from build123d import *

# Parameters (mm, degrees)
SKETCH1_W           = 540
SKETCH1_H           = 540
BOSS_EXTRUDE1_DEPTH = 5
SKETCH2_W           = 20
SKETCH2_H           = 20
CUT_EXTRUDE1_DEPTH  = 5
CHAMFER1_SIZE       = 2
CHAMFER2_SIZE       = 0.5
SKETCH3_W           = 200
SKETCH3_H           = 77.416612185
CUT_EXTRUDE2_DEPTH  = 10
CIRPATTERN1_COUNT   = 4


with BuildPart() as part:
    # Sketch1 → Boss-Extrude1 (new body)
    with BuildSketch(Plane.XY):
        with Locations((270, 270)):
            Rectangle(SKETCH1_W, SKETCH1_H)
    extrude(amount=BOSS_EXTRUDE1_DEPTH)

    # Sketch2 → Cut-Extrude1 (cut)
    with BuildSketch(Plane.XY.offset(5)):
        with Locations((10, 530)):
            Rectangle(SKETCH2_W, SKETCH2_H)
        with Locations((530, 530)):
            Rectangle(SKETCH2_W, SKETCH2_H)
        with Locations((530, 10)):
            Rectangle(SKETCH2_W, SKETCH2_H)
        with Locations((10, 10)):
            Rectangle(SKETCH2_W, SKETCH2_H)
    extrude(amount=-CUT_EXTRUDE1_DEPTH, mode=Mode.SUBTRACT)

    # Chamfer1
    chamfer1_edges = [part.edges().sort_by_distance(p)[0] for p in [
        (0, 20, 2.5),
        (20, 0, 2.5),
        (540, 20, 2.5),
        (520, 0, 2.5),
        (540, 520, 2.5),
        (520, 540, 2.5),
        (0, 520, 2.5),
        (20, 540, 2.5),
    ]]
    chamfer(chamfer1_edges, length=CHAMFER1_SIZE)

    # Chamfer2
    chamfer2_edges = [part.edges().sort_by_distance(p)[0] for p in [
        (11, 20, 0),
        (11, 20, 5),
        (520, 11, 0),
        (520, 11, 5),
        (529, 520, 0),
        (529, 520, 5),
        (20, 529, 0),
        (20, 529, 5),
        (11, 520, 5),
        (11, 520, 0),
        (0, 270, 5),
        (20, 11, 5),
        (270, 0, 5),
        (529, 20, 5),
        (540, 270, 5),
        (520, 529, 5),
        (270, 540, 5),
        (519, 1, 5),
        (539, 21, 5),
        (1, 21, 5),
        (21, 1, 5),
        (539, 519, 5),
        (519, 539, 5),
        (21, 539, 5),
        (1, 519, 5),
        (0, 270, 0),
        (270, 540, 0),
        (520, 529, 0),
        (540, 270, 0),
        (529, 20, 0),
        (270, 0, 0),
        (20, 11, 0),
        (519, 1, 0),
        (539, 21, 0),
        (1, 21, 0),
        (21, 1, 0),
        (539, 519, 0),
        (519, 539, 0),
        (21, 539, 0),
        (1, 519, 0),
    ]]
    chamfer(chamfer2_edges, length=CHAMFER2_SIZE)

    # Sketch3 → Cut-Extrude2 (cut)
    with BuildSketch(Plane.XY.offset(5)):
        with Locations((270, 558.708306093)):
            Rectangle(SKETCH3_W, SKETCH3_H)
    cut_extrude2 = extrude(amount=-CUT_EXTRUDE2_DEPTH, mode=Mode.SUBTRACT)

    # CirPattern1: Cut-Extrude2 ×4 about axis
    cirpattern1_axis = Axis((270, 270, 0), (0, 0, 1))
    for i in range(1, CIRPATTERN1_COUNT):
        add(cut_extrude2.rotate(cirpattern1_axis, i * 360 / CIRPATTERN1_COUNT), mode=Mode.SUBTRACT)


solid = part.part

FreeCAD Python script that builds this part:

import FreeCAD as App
import Part
import Sketcher
from FreeCAD import Vector
Q = App.Units.Quantity


def edges_at(feature, points):
    """Names of the edges that pass closest to the given points."""
    edges = feature.Shape.Edges
    near = lambda p: min(range(len(edges)), key=lambda i: edges[i].distToShape(Part.Vertex(*p))[0])
    return sorted({f"Edge{near(p) + 1}" for p in points})

doc = App.newDocument("Part")
body = doc.addObject("PartDesign::Body", "Body")

# Sketch on XY plane
sketch1 = doc.addObject("Sketcher::SketchObject", "Sketch")
body.addObject(sketch1)
sketch1.AttachmentSupport = (doc.XY_Plane, [""])
sketch1.MapMode = "FlatFace"
sketch1.addGeometry([
    Part.LineSegment(Vector(0, 540, 0), Vector(0, 0, 0)),
    Part.LineSegment(Vector(0, 0, 0), Vector(540, 0, 0)),
    Part.LineSegment(Vector(540, 0, 0), Vector(540, 540, 0)),
    Part.LineSegment(Vector(540, 540, 0), Vector(0, 540, 0)),
], False)
sketch1.addConstraint([
    Sketcher.Constraint("Coincident", 0, 2, 1, 1),
    Sketcher.Constraint("Coincident", 1, 2, 2, 1),
    Sketcher.Constraint("Coincident", 2, 2, 3, 1),
    Sketcher.Constraint("Coincident", 3, 2, 0, 1),
    Sketcher.Constraint("Vertical", 0),
    Sketcher.Constraint("Horizontal", 1),
    Sketcher.Constraint("Vertical", 2),
    Sketcher.Constraint("Horizontal", 3),
    Sketcher.Constraint("Coincident", 0, 2, -1, 1),
    Sketcher.Constraint("Equal", 3, 0),
    Sketcher.Constraint("DistanceX", 1, 1, 1, 2, Q("540 mm")),
])
pad1 = doc.addObject("PartDesign::Pad", "Pad")
body.addObject(pad1)
pad1.Profile = sketch1
pad1.Length = 5

# Sketch on XY plane
sketch2 = doc.addObject("Sketcher::SketchObject", "Sketch001")
body.addObject(sketch2)
sketch2.AttachmentSupport = (doc.XY_Plane, [""])
sketch2.MapMode = "FlatFace"
sketch2.AttachmentOffset = App.Placement(Vector(0, 0, 5), App.Rotation())
sketch2.addGeometry([
    Part.LineSegment(Vector(0, 540, 0), Vector(0, 520, 0)),  # 0
    Part.LineSegment(Vector(0, 520, 0), Vector(20, 520, 0)),  # 1
    Part.LineSegment(Vector(20, 520, 0), Vector(20, 540, 0)),  # 2
    Part.LineSegment(Vector(20, 540, 0), Vector(0, 540, 0)),  # 3
    Part.LineSegment(Vector(520, 540, 0), Vector(520, 520, 0)),  # 4
    Part.LineSegment(Vector(520, 520, 0), Vector(540, 520, 0)),  # 5
    Part.LineSegment(Vector(540, 520, 0), Vector(540, 540, 0)),  # 6
    Part.LineSegment(Vector(540, 540, 0), Vector(520, 540, 0)),  # 7
    Part.LineSegment(Vector(520, 20, 0), Vector(520, 0, 0)),  # 8
    Part.LineSegment(Vector(520, 0, 0), Vector(540, 0, 0)),  # 9
    Part.LineSegment(Vector(540, 0, 0), Vector(540, 20, 0)),  # 10
    Part.LineSegment(Vector(540, 20, 0), Vector(520, 20, 0)),  # 11
    Part.LineSegment(Vector(0, 20, 0), Vector(0, 0, 0)),  # 12
    Part.LineSegment(Vector(0, 0, 0), Vector(20, 0, 0)),  # 13
    Part.LineSegment(Vector(20, 0, 0), Vector(20, 20, 0)),  # 14
    Part.LineSegment(Vector(20, 20, 0), Vector(0, 20, 0)),  # 15
], False)
sketch2.addConstraint([
    Sketcher.Constraint("Coincident", 0, 2, 1, 1),
    Sketcher.Constraint("Coincident", 1, 2, 2, 1),
    Sketcher.Constraint("Coincident", 2, 2, 3, 1),
    Sketcher.Constraint("Coincident", 3, 2, 0, 1),
    Sketcher.Constraint("Coincident", 4, 2, 5, 1),
    Sketcher.Constraint("Coincident", 5, 2, 6, 1),
    Sketcher.Constraint("Coincident", 6, 2, 7, 1),
    Sketcher.Constraint("Coincident", 7, 2, 4, 1),
    Sketcher.Constraint("Coincident", 8, 2, 9, 1),
    Sketcher.Constraint("Coincident", 9, 2, 10, 1),
    Sketcher.Constraint("Coincident", 10, 2, 11, 1),
    Sketcher.Constraint("Coincident", 11, 2, 8, 1),
    Sketcher.Constraint("Coincident", 12, 2, 13, 1),
    Sketcher.Constraint("Coincident", 13, 2, 14, 1),
    Sketcher.Constraint("Coincident", 14, 2, 15, 1),
    Sketcher.Constraint("Coincident", 15, 2, 12, 1),
    Sketcher.Constraint("Vertical", 0),
    Sketcher.Constraint("Horizontal", 1),
    Sketcher.Constraint("Vertical", 2),
    Sketcher.Constraint("Horizontal", 3),
    Sketcher.Constraint("Vertical", 4),
    Sketcher.Constraint("Horizontal", 5),
    Sketcher.Constraint("Vertical", 6),
    Sketcher.Constraint("Horizontal", 7),
    Sketcher.Constraint("Vertical", 8),
    Sketcher.Constraint("Horizontal", 9),
    Sketcher.Constraint("Vertical", 10),
    Sketcher.Constraint("Horizontal", 11),
    Sketcher.Constraint("Vertical", 12),
    Sketcher.Constraint("Horizontal", 13),
    Sketcher.Constraint("Vertical", 14),
    Sketcher.Constraint("Horizontal", 15),
    Sketcher.Constraint("Coincident", 12, 2, -1, 1),
    Sketcher.Constraint("PointOnObject", 0, 2, -2),
    Sketcher.Constraint("PointOnObject", 8, 2, -1),
    Sketcher.Constraint("Horizontal", 1, 2, 4, 2),
    Sketcher.Constraint("Horizontal", 3, 2, 6, 2),
    Sketcher.Constraint("Horizontal", 11, 2, 14, 2),
    Sketcher.Constraint("Vertical", 7, 2, 8, 2),
    Sketcher.Constraint("Vertical", 6, 2, 9, 2),
    Sketcher.Constraint("Vertical", 2, 2, 13, 2),
    Sketcher.Constraint("Equal", 3, 5),
    Sketcher.Constraint("Equal", 15, 0),
    Sketcher.Constraint("Equal", 6, 8),
    Sketcher.Constraint("DistanceX", 1, 1, 1, 2, Q("20 mm")),
    Sketcher.Constraint("DistanceY", -1, 1, 0, 2, Q("520 mm")),
    Sketcher.Constraint("DistanceX", -1, 1, 4, 2, Q("520 mm")),
])
pocket1 = doc.addObject("PartDesign::Pocket", "Pocket")
body.addObject(pocket1)
pocket1.Profile = sketch2
pocket1.Length = 5
doc.recompute()

chamfer = doc.addObject("PartDesign::Chamfer", "Chamfer")
body.addObject(chamfer)
chamfer.Base = (pocket1, edges_at(pocket1, [
    (0, 20, 2.5),
    (20, 0, 2.5),
    (540, 20, 2.5),
    (520, 0, 2.5),
    (540, 520, 2.5),
    (520, 540, 2.5),
    (0, 520, 2.5),
    (20, 540, 2.5),
]))
chamfer.Size = 2
doc.recompute()

chamfer2 = doc.addObject("PartDesign::Chamfer", "Chamfer001")
body.addObject(chamfer2)
chamfer2.Base = (chamfer, edges_at(chamfer, [
    (11, 20, 0),
    (11, 20, 5),
    (520, 11, 0),
    (520, 11, 5),
    (529, 520, 0),
    (529, 520, 5),
    (20, 529, 0),
    (20, 529, 5),
    (11, 520, 5),
    (11, 520, 0),
    (0, 270, 5),
    (20, 11, 5),
    (270, 0, 5),
    (529, 20, 5),
    (540, 270, 5),
    (520, 529, 5),
    (270, 540, 5),
    (519, 1, 5),
    (539, 21, 5),
    (1, 21, 5),
    (21, 1, 5),
    (539, 519, 5),
    (519, 539, 5),
    (21, 539, 5),
    (1, 519, 5),
    (0, 270, 0),
    (270, 540, 0),
    (520, 529, 0),
    (540, 270, 0),
    (529, 20, 0),
    (270, 0, 0),
    (20, 11, 0),
    (519, 1, 0),
    (539, 21, 0),
    (1, 21, 0),
    (21, 1, 0),
    (539, 519, 0),
    (519, 539, 0),
    (21, 539, 0),
    (1, 519, 0),
]))
chamfer2.Size = 0.5

# Sketch on XY plane
sketch3 = doc.addObject("Sketcher::SketchObject", "Sketch002")
body.addObject(sketch3)
sketch3.AttachmentSupport = (doc.XY_Plane, [""])
sketch3.MapMode = "FlatFace"
sketch3.AttachmentOffset = App.Placement(Vector(0, 0, 5), App.Rotation())
sketch3.addGeometry([
    Part.LineSegment(Vector(170, 597, 0), Vector(170, 520, 0)),
    Part.LineSegment(Vector(170, 520, 0), Vector(370, 520, 0)),
    Part.LineSegment(Vector(370, 520, 0), Vector(370, 597, 0)),
    Part.LineSegment(Vector(370, 597, 0), Vector(170, 597, 0)),
], False)
sketch3.addConstraint([
    Sketcher.Constraint("Coincident", 0, 2, 1, 1),
    Sketcher.Constraint("Coincident", 1, 2, 2, 1),
    Sketcher.Constraint("Coincident", 2, 2, 3, 1),
    Sketcher.Constraint("Coincident", 3, 2, 0, 1),
    Sketcher.Constraint("Vertical", 0),
    Sketcher.Constraint("Horizontal", 1),
    Sketcher.Constraint("Vertical", 2),
    Sketcher.Constraint("Horizontal", 3),
    Sketcher.Constraint("DistanceX", 1, 1, 1, 2, Q("200 mm")),
    Sketcher.Constraint("DistanceX", -1, 1, 0, 2, Q("170 mm")),
    Sketcher.Constraint("DistanceY", -1, 1, 0, 2, Q("520 mm")),
    Sketcher.Constraint("DistanceY", 0, 2, 0, 1, Q("77.416612 mm")),
])
pocket2 = doc.addObject("PartDesign::Pocket", "Pocket001")
body.addObject(pocket2)
pocket2.Profile = sketch3
pocket2.Length = 10
doc.recompute()

datumline = doc.addObject("PartDesign::Line", "DatumLine")
body.addObject(datumline)
datumline.Placement = App.Placement(Vector(270, 270, 0), App.Rotation(Vector(0, 0, 1), Vector(0, 0, 1)))
polarpattern = doc.addObject("PartDesign::PolarPattern", "PolarPattern")
body.addObject(polarpattern)
polarpattern.Originals = [pocket2]
polarpattern.Axis = (datumline, [""])
polarpattern.Angle = 360
polarpattern.Occurrences = 4
body.Tip = polarpattern

doc.recompute()
